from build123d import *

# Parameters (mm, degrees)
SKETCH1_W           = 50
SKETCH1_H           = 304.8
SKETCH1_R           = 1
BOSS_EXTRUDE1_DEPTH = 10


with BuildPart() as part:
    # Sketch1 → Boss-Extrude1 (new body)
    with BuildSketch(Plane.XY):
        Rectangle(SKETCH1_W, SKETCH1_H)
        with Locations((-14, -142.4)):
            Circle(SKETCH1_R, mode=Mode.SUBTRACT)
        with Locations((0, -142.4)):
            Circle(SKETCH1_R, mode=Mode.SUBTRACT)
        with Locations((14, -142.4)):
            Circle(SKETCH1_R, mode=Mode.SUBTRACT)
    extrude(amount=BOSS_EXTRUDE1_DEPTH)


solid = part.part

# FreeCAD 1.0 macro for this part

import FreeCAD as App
import Part
import Sketcher

V = App.Vector
Q = App.Units.Quantity


def add_polygon(sketch, points):
    """Adds a closed chain of lines whose ends are joined by coincident constraints."""
    first, n = sketch.GeometryCount, len(points)
    for a, b in zip(points, points[1:] + points[:1]):
        sketch.addGeometry(Part.LineSegment(App.Vector(*a, 0), App.Vector(*b, 0)), False)
    for i in range(n):
        sketch.addConstraint(Sketcher.Constraint("Coincident", first + i, 2, first + (i + 1) % n, 1))

doc = App.newDocument("Part")
params = doc.addObject("Spreadsheet::Sheet", "Params")
for row, (alias, value) in enumerate([
    ("sketch1_diameter", "2 mm"),
    ("sketch1_width", "50 mm"),
    ("sketch1_height", "304.8 mm"),
    ("pad1_length", "10 mm"),
], start=1):
    params.set(f"A{row}", alias)
    params.set(f"B{row}", "=" + value)
    params.setAlias(f"B{row}", alias)

body = doc.addObject("PartDesign::Body", "Body")

# Sketch on XY plane
sketch1 = doc.addObject("Sketcher::SketchObject", "Sketch")
body.addObject(sketch1)
sketch1.AttachmentSupport = (doc.XY_Plane, [""])
sketch1.MapMode = "FlatFace"
add_polygon(sketch1, [(-25, 152.4), (-25, -152.4), (25, -152.4), (25, 152.4)])  # lines 0-3
sketch1.addGeometry(Part.Circle(V(-14, -142.4, 0), V(0, 0, 1), 1), False)  # 4
sketch1.addGeometry(Part.Circle(V(0, -142.4, 0), V(0, 0, 1), 1), False)  # 5
sketch1.addGeometry(Part.Circle(V(14, -142.4, 0), V(0, 0, 1), 1), False)  # 6
sketch1.addConstraint([
    Sketcher.Constraint("Vertical", 0),
    Sketcher.Constraint("Horizontal", 1),
    Sketcher.Constraint("Vertical", 2),
    Sketcher.Constraint("Horizontal", 3),
    Sketcher.Constraint("Equal", 4, 5),
    Sketcher.Constraint("Equal", 5, 6),
    Sketcher.Constraint("Symmetric", 0, 2, 2, 2, -1, 1),
    Sketcher.Constraint("Symmetric", 4, 3, 6, 3, -2),
    Sketcher.Constraint("PointOnObject", 5, 3, -2),
    Sketcher.Constraint("Horizontal", 4, 3, 5, 3),
    Sketcher.Constraint("Diameter", 4, Q("2 mm")),
    Sketcher.Constraint("DistanceX", 1, 1, 1, 2, Q("50 mm")),
    Sketcher.Constraint("DistanceY", 0, 2, 0, 1, Q("304.8 mm")),
    Sketcher.Constraint("DistanceX", 4, 3, -1, 1, Q("14 mm")),
    Sketcher.Constraint("DistanceY", 0, 2, 4, 3, Q("10 mm")),
])
sketch1.setExpression("Constraints[14]", "Params.sketch1_diameter")
sketch1.setExpression("Constraints[15]", "Params.sketch1_width")
sketch1.setExpression("Constraints[16]", "Params.sketch1_height")
pad1 = doc.addObject("PartDesign::Pad", "Pad")
body.addObject(pad1)
pad1.Profile = sketch1
pad1.setExpression("Length", "Params.pad1_length")

doc.recompute()
